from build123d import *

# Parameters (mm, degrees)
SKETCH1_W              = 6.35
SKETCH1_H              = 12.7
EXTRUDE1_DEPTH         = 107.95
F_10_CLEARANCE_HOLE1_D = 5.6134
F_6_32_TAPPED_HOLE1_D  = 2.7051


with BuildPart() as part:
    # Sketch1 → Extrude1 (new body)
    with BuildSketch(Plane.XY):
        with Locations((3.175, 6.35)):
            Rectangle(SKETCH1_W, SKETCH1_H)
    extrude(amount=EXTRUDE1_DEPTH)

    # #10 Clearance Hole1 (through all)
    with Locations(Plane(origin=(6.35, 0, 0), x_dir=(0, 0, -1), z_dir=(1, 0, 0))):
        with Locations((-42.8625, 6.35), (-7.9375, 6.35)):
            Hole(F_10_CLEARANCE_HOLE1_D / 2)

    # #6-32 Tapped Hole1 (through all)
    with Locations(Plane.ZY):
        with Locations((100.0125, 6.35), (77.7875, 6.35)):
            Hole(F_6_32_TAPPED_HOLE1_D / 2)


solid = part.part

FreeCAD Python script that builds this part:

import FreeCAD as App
import Part
import Sketcher
Q = App.Units.Quantity


def add_polygon(sketch, points):
    """Adds a closed chain of lines whose ends are joined by coincident constraints."""
    first, n = sketch.GeometryCount, len(points)
    for a, b in zip(points, points[1:] + points[:1]):
        sketch.addGeometry(Part.LineSegment(App.Vector(*a, 0), App.Vector(*b, 0)), False)
    for i in range(n):
        sketch.addConstraint(Sketcher.Constraint("Coincident", first + i, 2, first + (i + 1) % n, 1))

doc = App.newDocument("Part")
body = doc.addObject("PartDesign::Body", "Body")

sketch1 = body.newObject("Sketcher::SketchObject", "Sketch")
sketch1.AttachmentSupport = (doc.getObject("XY_Plane"), [""])
sketch1.MapMode = "FlatFace"
add_polygon(sketch1, [(0, 13), (0, 0), (6, 0), (6, 13)])
sketch1.addConstraint([
    Sketcher.Constraint("Vertical", 0),
    Sketcher.Constraint("Horizontal", 1),
    Sketcher.Constraint("Vertical", 2),
    Sketcher.Constraint("Horizontal", 3),
    Sketcher.Constraint("Coincident", 0, 2, -1, 1),
    Sketcher.Constraint("DistanceY", 0, 2, 0, 1, Q("0.5 in")),
    Sketcher.Constraint("DistanceX", 1, 1, 1, 2, Q("0.25 in")),
])
pad1 = body.newObject("PartDesign::Pad", "Pad")
pad1.Profile = sketch1
pad1.Length = Q("4.25 in")

sketch2 = body.newObject("Sketcher::SketchObject", "Sketch001")
sketch2.AttachmentSupport = (doc.getObject("YZ_Plane"), [""])
sketch2.MapMode = "FlatFace"
sketch2.AttachmentOffset = App.Placement(App.Vector(0, 0, 0.25 * 25.4), App.Rotation())
sketch2.addGeometry([
    Part.Circle(App.Vector(6.3, 42.9, 0), App.Vector(0, 0, 1), 2.8),
    Part.Circle(App.Vector(6.3, 7.9, 0), App.Vector(0, 0, 1), 2.8),
], False)
sketch2.addConstraint([
    Sketcher.Constraint("Equal", 0, 1),
    Sketcher.Constraint("Vertical", 0, 3, 1, 3),
    Sketcher.Constraint("Diameter", 0, Q("0.221 in")),
    Sketcher.Constraint("DistanceX", -1, 1, 0, 3, Q("0.25 in")),
    Sketcher.Constraint("DistanceY", -1, 1, 0, 3, Q("1.6875 in")),
    Sketcher.Constraint("DistanceY", -1, 1, 1, 3, Q("0.3125 in")),
])
doc.recompute()
hole = body.newObject("PartDesign::Hole", "Hole")
hole.Profile = sketch2
hole.ThreadType = "None"
hole.Diameter = Q("0.221 in")
hole.DepthType = "ThroughAll"

sketch3 = body.newObject("Sketcher::SketchObject", "Sketch002")
sketch3.AttachmentSupport = (doc.getObject("YZ_Plane"), [""])
sketch3.MapMode = "FlatFace"
sketch3.addGeometry([
    Part.Circle(App.Vector(6.3, 100, 0), App.Vector(0, 0, 1), 1.4),
    Part.Circle(App.Vector(6.3, 77.8, 0), App.Vector(0, 0, 1), 1.4),
], False)
sketch3.addConstraint([
    Sketcher.Constraint("Equal", 0, 1),
    Sketcher.Constraint("Vertical", 0, 3, 1, 3),
    Sketcher.Constraint("Diameter", 0, Q("0.1065 in")),
    Sketcher.Constraint("DistanceX", -1, 1, 0, 3, Q("0.25 in")),
    Sketcher.Constraint("DistanceY", -1, 1, 0, 3, Q("3.9375 in")),
    Sketcher.Constraint("DistanceY", -1, 1, 1, 3, Q("3.0625 in")),
])
doc.recompute()
hole2 = body.newObject("PartDesign::Hole", "Hole001")
hole2.Profile = sketch3
hole2.ThreadType = "None"
hole2.Diameter = Q("0.1065 in")
hole2.DepthType = "ThroughAll"
hole2.Reversed = True

doc.recompute()
